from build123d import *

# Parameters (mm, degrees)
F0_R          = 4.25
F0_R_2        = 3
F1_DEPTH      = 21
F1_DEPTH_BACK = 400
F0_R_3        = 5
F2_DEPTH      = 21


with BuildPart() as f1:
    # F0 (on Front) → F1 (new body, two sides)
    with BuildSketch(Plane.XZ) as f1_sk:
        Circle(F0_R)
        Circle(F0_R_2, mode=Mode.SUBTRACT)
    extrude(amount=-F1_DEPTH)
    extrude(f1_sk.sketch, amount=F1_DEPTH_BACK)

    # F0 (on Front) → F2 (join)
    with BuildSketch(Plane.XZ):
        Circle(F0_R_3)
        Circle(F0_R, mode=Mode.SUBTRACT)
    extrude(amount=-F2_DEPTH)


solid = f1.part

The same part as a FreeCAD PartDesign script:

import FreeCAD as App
import Part
import Sketcher

doc = App.newDocument("Part")
body = doc.addObject("PartDesign::Body", "Body")

sketch1 = body.newObject("Sketcher::SketchObject", "Sketch")
sketch1.AttachmentSupport = (doc.getObject("XZ_Plane"), [""])
sketch1.MapMode = "FlatFace"
sketch1.addGeometry(Part.Circle(App.Vector(0, 0, 0), App.Vector(0, 0, 1), 4.25), False)
sketch1.addGeometry(Part.Circle(App.Vector(0, 0, 0), App.Vector(0, 0, 1), 3), False)
sketch1.addConstraint(Sketcher.Constraint("Coincident", 0, 3, -1, 1))
sketch1.addConstraint(Sketcher.Constraint("Coincident", 1, 3, -1, 1))
sketch1.addConstraint(Sketcher.Constraint("Diameter", 1, 6.0))
sketch1.addConstraint(Sketcher.Constraint("Diameter", 0, 8.5))
pad1 = body.newObject("PartDesign::Pad", "Pad")
pad1.Profile = sketch1
pad1.Type = "TwoLengths"
pad1.Length = 21
pad1.Length2 = 400
pad1.Reversed = True

sketch2 = body.newObject("Sketcher::SketchObject", "Sketch001")
sketch2.AttachmentSupport = (doc.getObject("XZ_Plane"), [""])
sketch2.MapMode = "FlatFace"
sketch2.addGeometry(Part.Circle(App.Vector(0, 0, 0), App.Vector(0, 0, 1), 5), False)
sketch2.addGeometry(Part.Circle(App.Vector(0, 0, 0), App.Vector(0, 0, 1), 4.25), False)
sketch2.addConstraint(Sketcher.Constraint("Coincident", 0, 3, -1, 1))
sketch2.addConstraint(Sketcher.Constraint("Coincident", 1, 3, -1, 1))
sketch2.addConstraint(Sketcher.Constraint("Diameter", 0, 10.0))
sketch2.addConstraint(Sketcher.Constraint("Diameter", 1, 8.5))
pad2 = body.newObject("PartDesign::Pad", "Pad001")
pad2.Profile = sketch2
pad2.Length = 21
pad2.Reversed = True

doc.recompute()
